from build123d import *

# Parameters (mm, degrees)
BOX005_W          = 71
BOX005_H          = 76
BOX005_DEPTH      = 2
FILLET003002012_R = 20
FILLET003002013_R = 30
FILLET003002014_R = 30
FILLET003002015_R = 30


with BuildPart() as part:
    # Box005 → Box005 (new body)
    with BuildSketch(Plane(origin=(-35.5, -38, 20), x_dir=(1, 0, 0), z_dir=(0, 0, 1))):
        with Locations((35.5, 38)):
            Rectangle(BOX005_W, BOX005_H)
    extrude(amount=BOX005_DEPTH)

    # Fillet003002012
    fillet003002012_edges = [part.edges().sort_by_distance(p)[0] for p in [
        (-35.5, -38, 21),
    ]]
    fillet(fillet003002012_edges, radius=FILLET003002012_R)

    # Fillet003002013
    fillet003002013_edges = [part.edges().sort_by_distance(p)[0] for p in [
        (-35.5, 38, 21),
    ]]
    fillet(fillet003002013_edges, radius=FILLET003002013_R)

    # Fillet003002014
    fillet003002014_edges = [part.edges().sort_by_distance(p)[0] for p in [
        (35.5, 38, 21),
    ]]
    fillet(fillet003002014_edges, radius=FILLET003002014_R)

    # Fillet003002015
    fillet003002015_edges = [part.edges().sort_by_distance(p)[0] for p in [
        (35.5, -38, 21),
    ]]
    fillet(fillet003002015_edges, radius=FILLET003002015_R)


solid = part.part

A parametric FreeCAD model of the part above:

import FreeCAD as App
import Part
import Sketcher
from FreeCAD import Vector
Q = App.Units.Quantity


def edges_at(feature, points):
    """Names of the edges that pass closest to the given points."""
    edges = feature.Shape.Edges
    near = lambda p: min(range(len(edges)), key=lambda i: edges[i].distToShape(Part.Vertex(*p))[0])
    return sorted({f"Edge{near(p) + 1}" for p in points})


def add_polygon(sketch, points):
    """Adds a closed chain of lines whose ends are joined by coincident constraints."""
    first, n = sketch.GeometryCount, len(points)
    for a, b in zip(points, points[1:] + points[:1]):
        sketch.addGeometry(Part.LineSegment(App.Vector(*a, 0), App.Vector(*b, 0)), False)
    for i in range(n):
        sketch.addConstraint(Sketcher.Constraint("Coincident", first + i, 2, first + (i + 1) % n, 1))

doc = App.newDocument("Part")
body = doc.addObject("PartDesign::Body", "Body")

# Sketch on XY plane
sketch1 = body.newObject("Sketcher::SketchObject", "Sketch")
sketch1.AttachmentSupport = (doc.getObject("XY_Plane"), [""])
sketch1.MapMode = "FlatFace"
sketch1.AttachmentOffset = App.Placement(Vector(0, 0, 20), App.Rotation())
add_polygon(sketch1, [(-36, 38), (-36, -38), (36, -38), (36, 38)])  # lines 0-3
sketch1.addConstraint(Sketcher.Constraint("Vertical", 0))
sketch1.addConstraint(Sketcher.Constraint("Horizontal", 1))
sketch1.addConstraint(Sketcher.Constraint("Vertical", 2))
sketch1.addConstraint(Sketcher.Constraint("Horizontal", 3))
sketch1.addConstraint(Sketcher.Constraint("Symmetric", 0, 2, 2, 2, -1, 1))
sketch1.addConstraint(Sketcher.Constraint("DistanceX", 1, 1, 1, 2, Q("71 mm")))
sketch1.addConstraint(Sketcher.Constraint("DistanceY", 0, 2, 0, 1, Q("76 mm")))
pad1 = body.newObject("PartDesign::Pad", "Pad")
pad1.Profile = sketch1
pad1.Length = 2
doc.recompute()

fillet = body.newObject("PartDesign::Fillet", "Fillet")
fillet.Base = (pad1, edges_at(pad1, [(-35.5, -38, 21)]))
fillet.Radius = 20
doc.recompute()

fillet2 = body.newObject("PartDesign::Fillet", "Fillet001")
fillet2.Base = (fillet, edges_at(fillet, [(-35.5, 38, 21)]))
fillet2.Radius = 30
doc.recompute()

fillet3 = body.newObject("PartDesign::Fillet", "Fillet002")
fillet3.Base = (fillet2, edges_at(fillet2, [(35.5, 38, 21)]))
fillet3.Radius = 30
doc.recompute()

fillet4 = body.newObject("PartDesign::Fillet", "Fillet003")
fillet4.Base = (fillet3, edges_at(fillet3, [(35.5, -38, 21)]))
fillet4.Radius = 30

doc.recompute()
